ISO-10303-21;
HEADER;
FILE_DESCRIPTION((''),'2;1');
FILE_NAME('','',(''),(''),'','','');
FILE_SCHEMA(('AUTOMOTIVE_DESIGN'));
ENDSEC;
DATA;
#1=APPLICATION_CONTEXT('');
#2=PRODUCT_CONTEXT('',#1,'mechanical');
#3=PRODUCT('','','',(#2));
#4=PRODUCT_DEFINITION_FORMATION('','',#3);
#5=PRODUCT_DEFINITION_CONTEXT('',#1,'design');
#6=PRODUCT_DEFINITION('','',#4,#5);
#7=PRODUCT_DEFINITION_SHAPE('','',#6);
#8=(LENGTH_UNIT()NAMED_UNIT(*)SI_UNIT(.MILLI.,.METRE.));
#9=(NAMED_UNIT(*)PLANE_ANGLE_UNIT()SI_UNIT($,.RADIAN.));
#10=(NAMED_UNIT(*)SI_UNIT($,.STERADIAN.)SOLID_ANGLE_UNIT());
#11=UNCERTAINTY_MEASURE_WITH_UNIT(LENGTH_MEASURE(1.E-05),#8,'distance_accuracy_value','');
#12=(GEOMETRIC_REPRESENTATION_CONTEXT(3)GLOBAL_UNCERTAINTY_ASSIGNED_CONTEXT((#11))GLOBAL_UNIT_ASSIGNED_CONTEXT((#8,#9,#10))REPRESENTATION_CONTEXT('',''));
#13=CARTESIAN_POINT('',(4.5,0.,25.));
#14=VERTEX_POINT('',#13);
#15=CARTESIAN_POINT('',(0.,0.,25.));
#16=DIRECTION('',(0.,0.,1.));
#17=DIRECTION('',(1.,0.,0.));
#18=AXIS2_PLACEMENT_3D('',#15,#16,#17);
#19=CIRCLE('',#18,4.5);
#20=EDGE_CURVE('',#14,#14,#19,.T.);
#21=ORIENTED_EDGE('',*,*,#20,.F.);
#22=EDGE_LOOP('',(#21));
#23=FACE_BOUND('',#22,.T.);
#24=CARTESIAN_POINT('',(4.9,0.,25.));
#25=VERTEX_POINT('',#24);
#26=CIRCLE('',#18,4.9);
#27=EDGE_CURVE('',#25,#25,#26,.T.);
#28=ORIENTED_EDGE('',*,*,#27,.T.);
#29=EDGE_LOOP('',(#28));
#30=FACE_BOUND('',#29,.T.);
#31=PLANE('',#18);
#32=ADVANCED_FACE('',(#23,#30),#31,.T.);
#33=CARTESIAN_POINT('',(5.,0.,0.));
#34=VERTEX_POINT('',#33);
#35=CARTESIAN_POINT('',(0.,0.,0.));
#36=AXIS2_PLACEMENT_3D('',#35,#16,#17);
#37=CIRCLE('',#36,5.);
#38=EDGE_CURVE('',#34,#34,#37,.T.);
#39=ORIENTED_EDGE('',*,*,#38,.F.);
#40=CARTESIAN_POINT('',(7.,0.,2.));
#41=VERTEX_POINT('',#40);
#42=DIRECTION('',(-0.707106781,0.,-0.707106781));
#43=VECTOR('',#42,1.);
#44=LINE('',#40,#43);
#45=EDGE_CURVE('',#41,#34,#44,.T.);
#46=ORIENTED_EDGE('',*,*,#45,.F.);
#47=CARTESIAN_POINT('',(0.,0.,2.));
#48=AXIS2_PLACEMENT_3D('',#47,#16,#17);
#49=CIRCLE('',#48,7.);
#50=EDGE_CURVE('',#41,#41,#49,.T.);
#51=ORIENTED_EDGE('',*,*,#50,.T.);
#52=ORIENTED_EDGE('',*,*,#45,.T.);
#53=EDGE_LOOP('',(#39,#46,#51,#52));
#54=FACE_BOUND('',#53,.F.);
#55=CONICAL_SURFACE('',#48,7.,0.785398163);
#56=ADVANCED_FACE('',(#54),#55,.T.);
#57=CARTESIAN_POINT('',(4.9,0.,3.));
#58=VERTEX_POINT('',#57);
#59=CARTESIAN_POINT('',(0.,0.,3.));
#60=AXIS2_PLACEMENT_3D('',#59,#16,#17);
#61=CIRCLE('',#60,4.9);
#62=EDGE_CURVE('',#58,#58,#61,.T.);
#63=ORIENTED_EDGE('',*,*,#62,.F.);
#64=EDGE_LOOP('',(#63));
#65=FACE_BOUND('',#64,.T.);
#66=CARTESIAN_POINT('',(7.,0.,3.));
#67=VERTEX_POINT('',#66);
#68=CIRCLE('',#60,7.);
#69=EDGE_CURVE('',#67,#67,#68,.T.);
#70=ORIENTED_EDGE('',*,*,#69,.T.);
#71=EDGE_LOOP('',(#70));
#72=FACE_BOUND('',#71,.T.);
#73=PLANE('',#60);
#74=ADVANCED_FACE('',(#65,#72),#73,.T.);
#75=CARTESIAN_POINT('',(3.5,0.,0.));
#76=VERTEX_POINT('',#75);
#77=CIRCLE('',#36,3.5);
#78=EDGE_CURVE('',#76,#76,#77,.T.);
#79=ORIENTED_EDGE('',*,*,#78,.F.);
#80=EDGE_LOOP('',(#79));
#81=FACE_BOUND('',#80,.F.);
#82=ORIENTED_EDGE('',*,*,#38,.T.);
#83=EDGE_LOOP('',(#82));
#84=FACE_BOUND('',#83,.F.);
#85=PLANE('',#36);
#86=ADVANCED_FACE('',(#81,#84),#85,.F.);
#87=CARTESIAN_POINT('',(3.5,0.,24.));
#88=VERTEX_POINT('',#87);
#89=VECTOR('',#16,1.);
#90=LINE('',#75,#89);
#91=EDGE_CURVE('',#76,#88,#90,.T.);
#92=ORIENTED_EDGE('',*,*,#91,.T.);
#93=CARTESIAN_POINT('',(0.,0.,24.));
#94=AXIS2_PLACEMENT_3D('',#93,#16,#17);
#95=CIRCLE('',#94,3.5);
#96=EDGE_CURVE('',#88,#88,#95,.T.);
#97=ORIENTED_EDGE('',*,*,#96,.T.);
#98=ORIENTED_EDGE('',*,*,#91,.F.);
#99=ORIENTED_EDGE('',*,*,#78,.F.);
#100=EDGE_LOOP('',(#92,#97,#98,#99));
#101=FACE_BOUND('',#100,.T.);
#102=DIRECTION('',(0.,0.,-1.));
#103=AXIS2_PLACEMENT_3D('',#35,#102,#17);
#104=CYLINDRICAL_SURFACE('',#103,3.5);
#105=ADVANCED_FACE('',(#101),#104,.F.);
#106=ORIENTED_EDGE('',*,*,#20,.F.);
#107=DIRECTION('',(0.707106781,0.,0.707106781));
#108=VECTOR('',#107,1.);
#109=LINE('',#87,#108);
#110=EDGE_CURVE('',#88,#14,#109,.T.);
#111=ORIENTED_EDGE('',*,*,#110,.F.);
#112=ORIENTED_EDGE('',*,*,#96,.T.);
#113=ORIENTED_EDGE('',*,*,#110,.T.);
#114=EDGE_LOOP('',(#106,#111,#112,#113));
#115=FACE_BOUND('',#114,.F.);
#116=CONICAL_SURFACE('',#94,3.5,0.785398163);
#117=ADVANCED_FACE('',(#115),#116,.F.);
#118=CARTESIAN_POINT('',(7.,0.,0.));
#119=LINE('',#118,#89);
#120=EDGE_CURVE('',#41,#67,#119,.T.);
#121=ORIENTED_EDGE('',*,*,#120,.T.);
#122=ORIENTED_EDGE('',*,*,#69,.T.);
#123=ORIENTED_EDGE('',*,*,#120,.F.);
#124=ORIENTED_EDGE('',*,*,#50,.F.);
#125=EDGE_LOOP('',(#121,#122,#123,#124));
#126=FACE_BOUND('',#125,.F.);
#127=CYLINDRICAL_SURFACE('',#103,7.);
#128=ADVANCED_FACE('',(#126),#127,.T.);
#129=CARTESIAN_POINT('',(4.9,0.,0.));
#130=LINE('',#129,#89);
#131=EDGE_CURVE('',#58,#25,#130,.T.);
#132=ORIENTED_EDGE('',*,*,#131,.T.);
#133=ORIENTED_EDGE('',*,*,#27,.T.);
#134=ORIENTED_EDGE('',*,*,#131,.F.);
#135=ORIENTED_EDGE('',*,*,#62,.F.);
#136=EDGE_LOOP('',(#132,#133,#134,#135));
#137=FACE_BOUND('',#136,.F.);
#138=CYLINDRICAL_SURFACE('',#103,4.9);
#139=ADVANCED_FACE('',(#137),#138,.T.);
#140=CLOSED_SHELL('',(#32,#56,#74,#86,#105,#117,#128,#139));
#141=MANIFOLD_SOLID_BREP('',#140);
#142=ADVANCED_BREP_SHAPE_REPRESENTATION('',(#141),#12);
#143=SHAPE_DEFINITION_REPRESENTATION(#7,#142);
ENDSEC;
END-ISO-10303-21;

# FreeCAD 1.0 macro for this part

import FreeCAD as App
import Part
import Sketcher


def edges_at(feature, points):
    """Names of the edges that pass closest to the given points."""
    edges = feature.Shape.Edges
    near = lambda p: min(range(len(edges)), key=lambda i: edges[i].distToShape(Part.Vertex(*p))[0])
    return sorted({f"Edge{near(p) + 1}" for p in points})

doc = App.newDocument("Part")
body = doc.addObject("PartDesign::Body", "Body")

sketch1 = body.newObject("Sketcher::SketchObject", "Sketch")
sketch1.AttachmentSupport = (doc.getObject("XY_Plane"), [""])
sketch1.MapMode = "FlatFace"
sketch1.addGeometry(Part.Circle(App.Vector(0, 0, 0), App.Vector(0, 0, 1), 4.9), False)
sketch1.addGeometry(Part.Circle(App.Vector(0, 0, 0), App.Vector(0, 0, 1), 3.5), False)
sketch1.addConstraint(Sketcher.Constraint("Coincident", 0, 3, -1, 1))
sketch1.addConstraint(Sketcher.Constraint("Coincident", 1, 3, -1, 1))
sketch1.addConstraint(Sketcher.Constraint("Diameter", 1, 7.0))
sketch1.addConstraint(Sketcher.Constraint("Diameter", 0, 9.8))
pad1 = body.newObject("PartDesign::Pad", "Pad")
pad1.Profile = sketch1
pad1.Length = 25

sketch2 = body.newObject("Sketcher::SketchObject", "Sketch001")
sketch2.AttachmentSupport = (doc.getObject("XY_Plane"), [""])
sketch2.MapMode = "FlatFace"
sketch2.addGeometry(Part.Circle(App.Vector(0, 0, 0), App.Vector(0, 0, 1), 7), False)
sketch2.addGeometry(Part.Circle(App.Vector(0, 0, 0), App.Vector(0, 0, 1), 4.9), False)
sketch2.addConstraint(Sketcher.Constraint("Coincident", 0, 3, -1, 1))
sketch2.addConstraint(Sketcher.Constraint("Coincident", 1, 3, -1, 1))
sketch2.addConstraint(Sketcher.Constraint("Diameter", 0, 14.0))
sketch2.addConstraint(Sketcher.Constraint("Diameter", 1, 9.8))
pad2 = body.newObject("PartDesign::Pad", "Pad001")
pad2.Profile = sketch2
pad2.Length = 3
doc.recompute()

chamfer = body.newObject("PartDesign::Chamfer", "Chamfer")
chamfer.Base = (pad2, edges_at(pad2, [(-7, 0, 0)]))
chamfer.Size = 2
doc.recompute()

chamfer2 = body.newObject("PartDesign::Chamfer", "Chamfer001")
chamfer2.Base = (chamfer, edges_at(chamfer, [(-3.5, 0, 25)]))
chamfer2.Size = 1

doc.recompute()
